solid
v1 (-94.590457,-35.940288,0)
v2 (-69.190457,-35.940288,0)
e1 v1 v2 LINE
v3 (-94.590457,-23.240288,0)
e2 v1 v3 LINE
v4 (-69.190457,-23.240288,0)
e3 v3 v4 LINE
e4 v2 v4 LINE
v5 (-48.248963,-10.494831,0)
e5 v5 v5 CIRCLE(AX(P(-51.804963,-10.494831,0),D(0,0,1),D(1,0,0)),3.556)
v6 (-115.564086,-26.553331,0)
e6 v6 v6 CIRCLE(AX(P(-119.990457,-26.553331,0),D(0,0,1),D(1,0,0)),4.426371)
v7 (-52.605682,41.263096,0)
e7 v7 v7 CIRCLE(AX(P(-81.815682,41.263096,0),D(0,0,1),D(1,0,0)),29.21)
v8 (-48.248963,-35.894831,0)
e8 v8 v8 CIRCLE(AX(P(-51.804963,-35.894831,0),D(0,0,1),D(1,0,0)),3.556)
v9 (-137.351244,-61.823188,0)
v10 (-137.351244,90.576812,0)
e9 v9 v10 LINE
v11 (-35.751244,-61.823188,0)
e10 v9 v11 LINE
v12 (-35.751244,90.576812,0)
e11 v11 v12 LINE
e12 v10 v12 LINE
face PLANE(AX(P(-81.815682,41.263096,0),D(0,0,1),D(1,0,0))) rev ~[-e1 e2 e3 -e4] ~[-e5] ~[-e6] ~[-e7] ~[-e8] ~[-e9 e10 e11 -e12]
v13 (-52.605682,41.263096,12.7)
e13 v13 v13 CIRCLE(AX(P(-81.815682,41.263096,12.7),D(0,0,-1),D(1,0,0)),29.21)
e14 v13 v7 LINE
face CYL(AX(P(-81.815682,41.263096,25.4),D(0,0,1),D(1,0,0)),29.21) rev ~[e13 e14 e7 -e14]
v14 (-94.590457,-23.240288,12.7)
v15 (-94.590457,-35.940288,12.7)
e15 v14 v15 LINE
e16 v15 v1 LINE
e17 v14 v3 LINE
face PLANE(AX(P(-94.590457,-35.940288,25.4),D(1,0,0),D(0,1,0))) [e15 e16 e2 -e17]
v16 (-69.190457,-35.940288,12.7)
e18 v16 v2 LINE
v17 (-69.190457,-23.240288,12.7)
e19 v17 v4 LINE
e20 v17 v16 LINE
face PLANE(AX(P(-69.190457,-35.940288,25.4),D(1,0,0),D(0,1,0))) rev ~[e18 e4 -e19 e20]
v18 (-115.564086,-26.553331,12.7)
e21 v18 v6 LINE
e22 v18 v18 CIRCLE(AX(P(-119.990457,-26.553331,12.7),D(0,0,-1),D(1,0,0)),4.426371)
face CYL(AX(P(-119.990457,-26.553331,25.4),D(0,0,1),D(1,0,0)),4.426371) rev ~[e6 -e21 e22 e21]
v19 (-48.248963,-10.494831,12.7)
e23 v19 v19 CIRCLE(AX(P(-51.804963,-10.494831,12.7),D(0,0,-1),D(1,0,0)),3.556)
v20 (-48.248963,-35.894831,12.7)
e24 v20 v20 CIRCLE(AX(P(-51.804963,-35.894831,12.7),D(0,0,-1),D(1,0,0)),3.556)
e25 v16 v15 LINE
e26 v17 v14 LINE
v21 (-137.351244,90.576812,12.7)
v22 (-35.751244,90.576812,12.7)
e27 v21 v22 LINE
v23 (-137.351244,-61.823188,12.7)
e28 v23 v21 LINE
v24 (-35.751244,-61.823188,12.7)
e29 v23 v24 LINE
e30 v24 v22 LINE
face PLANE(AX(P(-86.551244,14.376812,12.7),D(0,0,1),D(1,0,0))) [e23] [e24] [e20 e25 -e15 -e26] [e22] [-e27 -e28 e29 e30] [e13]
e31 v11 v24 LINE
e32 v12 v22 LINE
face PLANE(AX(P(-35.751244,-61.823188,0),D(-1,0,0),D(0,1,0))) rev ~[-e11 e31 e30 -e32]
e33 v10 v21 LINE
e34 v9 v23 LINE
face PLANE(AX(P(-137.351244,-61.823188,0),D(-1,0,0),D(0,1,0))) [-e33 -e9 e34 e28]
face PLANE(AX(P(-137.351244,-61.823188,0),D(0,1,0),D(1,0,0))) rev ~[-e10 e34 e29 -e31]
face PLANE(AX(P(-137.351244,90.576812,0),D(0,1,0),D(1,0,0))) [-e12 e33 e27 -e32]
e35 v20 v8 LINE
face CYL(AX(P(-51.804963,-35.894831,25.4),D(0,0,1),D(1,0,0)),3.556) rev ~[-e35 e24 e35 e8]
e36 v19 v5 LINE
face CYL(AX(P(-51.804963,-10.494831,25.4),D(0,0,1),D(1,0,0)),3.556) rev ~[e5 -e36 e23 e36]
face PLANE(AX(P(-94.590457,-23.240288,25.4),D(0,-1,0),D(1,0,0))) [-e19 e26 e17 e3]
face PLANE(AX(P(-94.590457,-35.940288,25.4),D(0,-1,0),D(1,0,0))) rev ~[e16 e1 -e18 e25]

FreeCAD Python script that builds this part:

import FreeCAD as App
import Part
import Sketcher
from FreeCAD import Vector
Q = App.Units.Quantity


def add_polygon(sketch, points):
    """Adds a closed chain of lines whose ends are joined by coincident constraints."""
    first, n = sketch.GeometryCount, len(points)
    for a, b in zip(points, points[1:] + points[:1]):
        sketch.addGeometry(Part.LineSegment(App.Vector(*a, 0), App.Vector(*b, 0)), False)
    for i in range(n):
        sketch.addConstraint(Sketcher.Constraint("Coincident", first + i, 2, first + (i + 1) % n, 1))

doc = App.newDocument("Part")
body = doc.addObject("PartDesign::Body", "Body")

sketch1 = body.newObject("Sketcher::SketchObject", "Sketch")
sketch1.AttachmentSupport = (doc.getObject("XY_Plane"), [""])
sketch1.MapMode = "FlatFace"
add_polygon(sketch1, [(-137.351244, 90.576812), (-137.351244, -61.823188), (-35.751244, -61.823188), (-35.751244, 90.576812)])
sketch1.addConstraint(Sketcher.Constraint("Vertical", 0))
sketch1.addConstraint(Sketcher.Constraint("Horizontal", 1))
sketch1.addConstraint(Sketcher.Constraint("Vertical", 2))
sketch1.addConstraint(Sketcher.Constraint("Horizontal", 3))
sketch1.addConstraint(Sketcher.Constraint("DistanceX", 1, 1, 1, 2, Q("4 in")))
sketch1.addConstraint(Sketcher.Constraint("DistanceY", 0, 2, 0, 1, Q("6 in")))
sketch1.addConstraint(Sketcher.Constraint("DistanceY", 0, 2, -1, 1, Q("61.823188 mm")))
sketch1.addConstraint(Sketcher.Constraint("DistanceX", 0, 2, -1, 1, Q("137.351244 mm")))
pad1 = body.newObject("PartDesign::Pad", "Pad")
pad1.Profile = sketch1
pad1.Length = Q("0.5 in")

sketch2 = body.newObject("Sketcher::SketchObject", "Sketch001")
sketch2.AttachmentSupport = (doc.getObject("XY_Plane"), [""])
sketch2.MapMode = "FlatFace"
sketch2.addGeometry(Part.Circle(Vector(-81.815682, 41.263096, 0), Vector(0, 0, 1), 29.21), False)
sketch2.addGeometry(Part.Circle(Vector(-119.990457, -26.553331, 0), Vector(0, 0, 1), 4.426371), False)
add_polygon(sketch2, [(-94.590457, -23.240288), (-94.590457, -35.940288), (-69.190457, -35.940288), (-69.190457, -23.240288)])
sketch2.addGeometry(Part.Circle(Vector(-51.804963, -10.494831, 0), Vector(0, 0, 1), 3.556), False)
sketch2.addGeometry(Part.Circle(Vector(-51.804963, -35.894831, 0), Vector(0, 0, 1), 3.556), False)
sketch2.addConstraint(Sketcher.Constraint("Vertical", 2))
sketch2.addConstraint(Sketcher.Constraint("Horizontal", 3))
sketch2.addConstraint(Sketcher.Constraint("Vertical", 4))
sketch2.addConstraint(Sketcher.Constraint("Horizontal", 5))
sketch2.addConstraint(Sketcher.Constraint("Equal", 6, 7))
sketch2.addConstraint(Sketcher.Constraint("Vertical", 6, 3, 7, 3))
sketch2.addConstraint(Sketcher.Constraint("Diameter", 0, Q("2.3 in")))
sketch2.addConstraint(Sketcher.Constraint("Diameter", 6, Q("0.28 in")))
sketch2.addConstraint(Sketcher.Constraint("DistanceX", 3, 1, 3, 2, Q("1 in")))
sketch2.addConstraint(Sketcher.Constraint("DistanceY", 2, 2, 2, 1, Q("0.5 in")))
sketch2.addConstraint(Sketcher.Constraint("DistanceY", 7, 3, 6, 3, Q("1 in")))
sketch2.addConstraint(Sketcher.Constraint("DistanceX", 1, 3, 2, 2, Q("1 in")))
sketch2.addConstraint(Sketcher.Constraint("Diameter", 1, Q("8.852742 mm")))
sketch2.addConstraint(Sketcher.Constraint("DistanceY", 1, 3, 6, 3, Q("16.0585 mm")))
sketch2.addConstraint(Sketcher.Constraint("DistanceX", 0, 3, -1, 1, Q("81.815682 mm")))
sketch2.addConstraint(Sketcher.Constraint("DistanceY", 1, 3, -1, 1, Q("26.553331 mm")))
sketch2.addConstraint(Sketcher.Constraint("DistanceY", 2, 2, -1, 1, Q("35.940288 mm")))
sketch2.addConstraint(Sketcher.Constraint("DistanceX", 0, 3, 6, 3, Q("30.010719 mm")))
sketch2.addConstraint(Sketcher.Constraint("DistanceY", -1, 1, 0, 3, Q("41.263096 mm")))
sketch2.addConstraint(Sketcher.Constraint("DistanceX", 1, 3, -1, 1, Q("119.990457 mm")))
pad2 = body.newObject("PartDesign::Pad", "Pad001")
pad2.Profile = sketch2
pad2.Length = Q("1 in")

sketch3 = body.newObject("Sketcher::SketchObject", "Sketch002")
sketch3.AttachmentSupport = (doc.getObject("XY_Plane"), [""])
sketch3.MapMode = "FlatFace"
sketch3.AttachmentOffset = App.Placement(Vector(0, 0, 1 * 25.4), App.Rotation())
add_polygon(sketch3, [(-94.590457, -23.240288), (-94.590457, -35.940288), (-69.190457, -35.940288), (-69.190457, -23.240288)])
sketch3.addGeometry(Part.Circle(Vector(-81.815682, 41.263096, 0), Vector(0, 0, 1), 29.21), False)
sketch3.addGeometry(Part.Circle(Vector(-51.804963, -10.494831, 0), Vector(0, 0, 1), 3.556), False)
sketch3.addGeometry(Part.Circle(Vector(-51.804963, -35.894831, 0), Vector(0, 0, 1), 3.556), False)
sketch3.addGeometry(Part.Circle(Vector(-119.990457, -26.553331, 0), Vector(0, 0, 1), 4.426371), False)
sketch3.addConstraint(Sketcher.Constraint("Vertical", 0))
sketch3.addConstraint(Sketcher.Constraint("Horizontal", 1))
sketch3.addConstraint(Sketcher.Constraint("Vertical", 2))
sketch3.addConstraint(Sketcher.Constraint("Horizontal", 3))
sketch3.addConstraint(Sketcher.Constraint("Equal", 5, 6))
sketch3.addConstraint(Sketcher.Constraint("Vertical", 5, 3, 6, 3))
sketch3.addConstraint(Sketcher.Constraint("Diameter", 4, Q("2.3 in")))
sketch3.addConstraint(Sketcher.Constraint("Diameter", 5, Q("0.28 in")))
sketch3.addConstraint(Sketcher.Constraint("DistanceX", 1, 1, 1, 2, Q("1 in")))
sketch3.addConstraint(Sketcher.Constraint("DistanceY", 0, 2, 0, 1, Q("0.5 in")))
sketch3.addConstraint(Sketcher.Constraint("DistanceY", 6, 3, 5, 3, Q("1 in")))
sketch3.addConstraint(Sketcher.Constraint("DistanceX", 7, 3, 0, 2, Q("1 in")))
sketch3.addConstraint(Sketcher.Constraint("Diameter", 7, Q("8.852742 mm")))
sketch3.addConstraint(Sketcher.Constraint("DistanceY", 6, 3, 7, 3, Q("9.3415 mm")))
sketch3.addConstraint(Sketcher.Constraint("DistanceX", 4, 3, -1, 1, Q("81.815682 mm")))
sketch3.addConstraint(Sketcher.Constraint("DistanceY", 5, 3, -1, 1, Q("10.494831 mm")))
sketch3.addConstraint(Sketcher.Constraint("DistanceY", 0, 2, -1, 1, Q("35.940288 mm")))
sketch3.addConstraint(Sketcher.Constraint("DistanceX", 4, 3, 5, 3, Q("30.010719 mm")))
sketch3.addConstraint(Sketcher.Constraint("DistanceY", -1, 1, 4, 3, Q("41.263096 mm")))
sketch3.addConstraint(Sketcher.Constraint("DistanceX", 7, 3, -1, 1, Q("119.990457 mm")))
pocket1 = body.newObject("PartDesign::Pocket", "Pocket")
pocket1.Profile = sketch3
pocket1.Length = Q("1 in")

doc.recompute()
